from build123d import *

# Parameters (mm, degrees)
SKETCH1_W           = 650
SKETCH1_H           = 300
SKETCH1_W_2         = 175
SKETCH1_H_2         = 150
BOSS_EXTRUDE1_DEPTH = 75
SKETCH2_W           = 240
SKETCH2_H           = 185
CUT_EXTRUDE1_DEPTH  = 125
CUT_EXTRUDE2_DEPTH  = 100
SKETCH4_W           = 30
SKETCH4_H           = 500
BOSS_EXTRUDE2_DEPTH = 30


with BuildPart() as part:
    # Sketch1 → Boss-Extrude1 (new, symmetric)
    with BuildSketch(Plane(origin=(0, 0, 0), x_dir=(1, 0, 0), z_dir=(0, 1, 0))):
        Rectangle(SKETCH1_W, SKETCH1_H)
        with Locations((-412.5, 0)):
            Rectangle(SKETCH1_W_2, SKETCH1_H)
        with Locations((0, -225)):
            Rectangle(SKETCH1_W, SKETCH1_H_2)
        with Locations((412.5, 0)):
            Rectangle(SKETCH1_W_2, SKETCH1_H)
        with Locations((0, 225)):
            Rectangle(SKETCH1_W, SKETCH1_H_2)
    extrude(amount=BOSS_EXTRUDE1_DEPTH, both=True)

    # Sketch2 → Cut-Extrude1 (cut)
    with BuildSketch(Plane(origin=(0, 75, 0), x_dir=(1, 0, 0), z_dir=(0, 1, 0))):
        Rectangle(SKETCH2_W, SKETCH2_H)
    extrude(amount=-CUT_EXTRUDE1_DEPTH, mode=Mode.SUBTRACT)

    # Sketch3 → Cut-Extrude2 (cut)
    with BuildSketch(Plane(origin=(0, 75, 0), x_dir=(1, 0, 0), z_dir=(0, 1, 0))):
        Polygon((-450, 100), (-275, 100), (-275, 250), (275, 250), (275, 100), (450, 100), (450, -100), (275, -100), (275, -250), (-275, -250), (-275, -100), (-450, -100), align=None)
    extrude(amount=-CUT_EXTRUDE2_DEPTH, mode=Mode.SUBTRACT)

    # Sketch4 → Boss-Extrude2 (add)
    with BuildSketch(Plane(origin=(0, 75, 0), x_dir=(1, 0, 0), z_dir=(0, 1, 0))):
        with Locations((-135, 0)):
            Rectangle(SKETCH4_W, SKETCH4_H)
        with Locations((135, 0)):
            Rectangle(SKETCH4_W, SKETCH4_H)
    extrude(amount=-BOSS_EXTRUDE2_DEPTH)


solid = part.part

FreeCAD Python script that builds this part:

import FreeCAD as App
import Part
import Sketcher

V = App.Vector
Q = App.Units.Quantity


def add_polygon(sketch, points):
    """Adds a closed chain of lines whose ends are joined by coincident constraints."""
    first, n = sketch.GeometryCount, len(points)
    for a, b in zip(points, points[1:] + points[:1]):
        sketch.addGeometry(Part.LineSegment(App.Vector(*a, 0), App.Vector(*b, 0)), False)
    for i in range(n):
        sketch.addConstraint(Sketcher.Constraint("Coincident", first + i, 2, first + (i + 1) % n, 1))

doc = App.newDocument("Part")
body = doc.addObject("PartDesign::Body", "Body")

# Sketch on XZ plane
sketch1 = body.newObject("Sketcher::SketchObject", "Sketch")
sketch1.AttachmentSupport = (doc.getObject("XZ_Plane"), [""])
sketch1.MapMode = "FlatFace"
add_polygon(sketch1, [(-500, -150), (-500, 150), (-325, 150), (-325, 300), (325, 300), (325, 150), (500, 150), (500, -150), (325, -150), (325, -300), (-325, -300), (-325, -150)])  # lines 0-11
sketch1.addConstraint([
    Sketcher.Constraint("Vertical", 0),
    Sketcher.Constraint("Horizontal", 1),
    Sketcher.Constraint("Vertical", 2),
    Sketcher.Constraint("Horizontal", 3),
    Sketcher.Constraint("Vertical", 4),
    Sketcher.Constraint("Horizontal", 5),
    Sketcher.Constraint("Vertical", 6),
    Sketcher.Constraint("Horizontal", 7),
    Sketcher.Constraint("Vertical", 8),
    Sketcher.Constraint("Horizontal", 9),
    Sketcher.Constraint("Vertical", 10),
    Sketcher.Constraint("Horizontal", 11),
    Sketcher.Constraint("Symmetric", 0, 2, 6, 2, -1, 1),
    Sketcher.Constraint("Symmetric", 2, 2, 8, 2, -1, 1),
    Sketcher.Constraint("Symmetric", 4, 2, 10, 2, -1, 1),
    Sketcher.Constraint("Symmetric", 1, 2, 4, 2, -2),
    Sketcher.Constraint("DistanceX", 1, 1, 1, 2, Q("175 mm")),
    Sketcher.Constraint("DistanceX", 3, 1, 3, 2, Q("650 mm")),
    Sketcher.Constraint("DistanceY", 0, 1, 0, 2, Q("300 mm")),
    Sketcher.Constraint("DistanceY", 2, 1, 2, 2, Q("150 mm")),
])
pad1 = body.newObject("PartDesign::Pad", "Pad")
pad1.Profile = sketch1
pad1.Length = 150
pad1.Midplane = True

# Sketch on XZ plane
sketch2 = body.newObject("Sketcher::SketchObject", "Sketch001")
sketch2.AttachmentSupport = (doc.getObject("XZ_Plane"), [""])
sketch2.MapMode = "FlatFace"
sketch2.AttachmentOffset = App.Placement(V(0, 0, -75), App.Rotation())
add_polygon(sketch2, [(-120, -92), (-120, 92), (120, 92), (120, -92)])  # lines 0-3
sketch2.addConstraint([
    Sketcher.Constraint("Vertical", 0),
    Sketcher.Constraint("Horizontal", 1),
    Sketcher.Constraint("Vertical", 2),
    Sketcher.Constraint("Horizontal", 3),
    Sketcher.Constraint("Symmetric", 0, 2, 2, 2, -1, 1),
    Sketcher.Constraint("DistanceX", 1, 1, 1, 2, Q("240 mm")),
    Sketcher.Constraint("DistanceY", 0, 1, 0, 2, Q("185 mm")),
])
pocket1 = body.newObject("PartDesign::Pocket", "Pocket")
pocket1.Profile = sketch2
pocket1.Length = 125
pocket1.Reversed = True

# Sketch on XZ plane
sketch3 = body.newObject("Sketcher::SketchObject", "Sketch002")
sketch3.AttachmentSupport = (doc.getObject("XZ_Plane"), [""])
sketch3.MapMode = "FlatFace"
sketch3.AttachmentOffset = App.Placement(V(0, 0, -75), App.Rotation())
add_polygon(sketch3, [(-275, -100), (-450, -100), (-450, 100), (-275, 100), (-275, 250), (275, 250), (275, 100), (450, 100), (450, -100), (275, -100), (275, -250), (-275, -250)])  # lines 0-11
sketch3.addConstraint([
    Sketcher.Constraint("Horizontal", 0),
    Sketcher.Constraint("Vertical", 1),
    Sketcher.Constraint("Horizontal", 2),
    Sketcher.Constraint("Vertical", 3),
    Sketcher.Constraint("Horizontal", 4),
    Sketcher.Constraint("Vertical", 5),
    Sketcher.Constraint("Horizontal", 6),
    Sketcher.Constraint("Vertical", 7),
    Sketcher.Constraint("Horizontal", 8),
    Sketcher.Constraint("Vertical", 9),
    Sketcher.Constraint("Horizontal", 10),
    Sketcher.Constraint("Vertical", 11),
    Sketcher.Constraint("Symmetric", 0, 2, 6, 2, -1, 1),
    Sketcher.Constraint("Symmetric", 2, 2, 8, 2, -1, 1),
    Sketcher.Constraint("Symmetric", 4, 2, 10, 2, -1, 1),
    Sketcher.Constraint("Symmetric", 2, 2, 5, 2, -2),
    Sketcher.Constraint("DistanceX", 0, 2, 0, 1, Q("175 mm")),
    Sketcher.Constraint("DistanceX", 4, 1, 4, 2, Q("550 mm")),
    Sketcher.Constraint("DistanceY", 1, 1, 1, 2, Q("200 mm")),
    Sketcher.Constraint("DistanceY", 3, 1, 3, 2, Q("150 mm")),
])
pocket2 = body.newObject("PartDesign::Pocket", "Pocket001")
pocket2.Profile = sketch3
pocket2.Length = 100
pocket2.Reversed = True

# Sketch on XZ plane
sketch4 = body.newObject("Sketcher::SketchObject", "Sketch003")
sketch4.AttachmentSupport = (doc.getObject("XZ_Plane"), [""])
sketch4.MapMode = "FlatFace"
sketch4.AttachmentOffset = App.Placement(V(0, 0, -75), App.Rotation())
add_polygon(sketch4, [(-150, -250), (-150, 250), (-120, 250), (-120, -250)])  # lines 0-3
add_polygon(sketch4, [(120, -250), (120, 250), (150, 250), (150, -250)])  # lines 4-7
sketch4.addConstraint([
    Sketcher.Constraint("Vertical", 0),
    Sketcher.Constraint("Horizontal", 1),
    Sketcher.Constraint("Vertical", 2),
    Sketcher.Constraint("Horizontal", 3),
    Sketcher.Constraint("Vertical", 4),
    Sketcher.Constraint("Horizontal", 5),
    Sketcher.Constraint("Vertical", 6),
    Sketcher.Constraint("Horizontal", 7),
    Sketcher.Constraint("Symmetric", 2, 2, 4, 2, -1, 1),
    Sketcher.Constraint("Symmetric", 0, 2, 6, 2, -1, 1),
    Sketcher.Constraint("Horizontal", 1, 2, 4, 2),
    Sketcher.Constraint("DistanceX", 1, 1, 1, 2, Q("30 mm")),
    Sketcher.Constraint("DistanceY", 0, 1, 0, 2, Q("500 mm")),
    Sketcher.Constraint("DistanceX", 0, 2, -1, 1, Q("150 mm")),
])
pad2 = body.newObject("PartDesign::Pad", "Pad001")
pad2.Profile = sketch4
pad2.Length = 30

doc.recompute()
